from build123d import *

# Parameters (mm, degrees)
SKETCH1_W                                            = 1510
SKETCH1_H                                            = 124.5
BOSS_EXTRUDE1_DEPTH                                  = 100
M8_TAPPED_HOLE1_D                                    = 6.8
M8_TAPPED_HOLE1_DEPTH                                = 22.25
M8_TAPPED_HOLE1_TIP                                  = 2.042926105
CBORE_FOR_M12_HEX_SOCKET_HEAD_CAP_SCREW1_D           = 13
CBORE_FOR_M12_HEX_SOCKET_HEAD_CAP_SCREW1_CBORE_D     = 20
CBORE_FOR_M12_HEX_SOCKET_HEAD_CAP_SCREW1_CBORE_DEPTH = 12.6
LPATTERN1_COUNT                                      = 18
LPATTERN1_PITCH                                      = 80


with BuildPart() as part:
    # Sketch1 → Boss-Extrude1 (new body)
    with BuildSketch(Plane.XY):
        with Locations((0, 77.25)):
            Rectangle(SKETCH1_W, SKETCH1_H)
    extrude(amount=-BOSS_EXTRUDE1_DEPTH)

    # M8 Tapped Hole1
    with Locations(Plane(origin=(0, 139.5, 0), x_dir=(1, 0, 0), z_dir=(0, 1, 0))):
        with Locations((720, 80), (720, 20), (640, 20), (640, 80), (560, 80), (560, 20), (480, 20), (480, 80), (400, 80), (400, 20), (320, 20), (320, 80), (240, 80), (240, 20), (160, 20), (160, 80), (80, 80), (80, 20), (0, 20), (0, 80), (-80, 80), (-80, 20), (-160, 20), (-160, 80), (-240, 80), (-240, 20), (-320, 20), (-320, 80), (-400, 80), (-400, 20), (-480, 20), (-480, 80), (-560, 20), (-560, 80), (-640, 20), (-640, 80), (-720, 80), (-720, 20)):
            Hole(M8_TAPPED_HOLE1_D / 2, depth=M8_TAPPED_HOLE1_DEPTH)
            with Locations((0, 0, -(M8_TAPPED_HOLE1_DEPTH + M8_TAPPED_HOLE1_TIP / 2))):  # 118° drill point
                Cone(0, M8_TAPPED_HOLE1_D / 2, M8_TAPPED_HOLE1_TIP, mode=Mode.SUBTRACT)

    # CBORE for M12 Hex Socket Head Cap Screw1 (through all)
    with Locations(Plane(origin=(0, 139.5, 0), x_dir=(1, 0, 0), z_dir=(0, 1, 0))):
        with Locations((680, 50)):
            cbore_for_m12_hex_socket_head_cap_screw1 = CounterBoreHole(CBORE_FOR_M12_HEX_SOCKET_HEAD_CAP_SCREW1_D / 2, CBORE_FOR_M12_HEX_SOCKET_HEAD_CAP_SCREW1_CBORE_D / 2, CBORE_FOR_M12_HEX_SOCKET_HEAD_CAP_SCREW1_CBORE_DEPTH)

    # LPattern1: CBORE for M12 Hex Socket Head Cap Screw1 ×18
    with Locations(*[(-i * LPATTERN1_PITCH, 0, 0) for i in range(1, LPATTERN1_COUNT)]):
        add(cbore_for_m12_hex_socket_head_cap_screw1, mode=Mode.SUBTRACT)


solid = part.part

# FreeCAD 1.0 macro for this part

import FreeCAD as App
import Part
import Sketcher
from FreeCAD import Vector


def add_polygon(sketch, points):
    """Adds a closed chain of lines whose ends are joined by coincident constraints."""
    first, n = sketch.GeometryCount, len(points)
    for a, b in zip(points, points[1:] + points[:1]):
        sketch.addGeometry(Part.LineSegment(App.Vector(*a, 0), App.Vector(*b, 0)), False)
    for i in range(n):
        sketch.addConstraint(Sketcher.Constraint("Coincident", first + i, 2, first + (i + 1) % n, 1))

doc = App.newDocument("Part")
body = doc.addObject("PartDesign::Body", "Body")

# Sketch on XY plane
sketch1 = body.newObject("Sketcher::SketchObject", "Sketch")
sketch1.AttachmentSupport = (doc.getObject("XY_Plane"), [""])
sketch1.MapMode = "FlatFace"
add_polygon(sketch1, [(-755, 140), (-755, 15), (755, 15), (755, 140)])  # lines 0-3
sketch1.addConstraint([
    Sketcher.Constraint("Vertical", 0),
    Sketcher.Constraint("Horizontal", 1),
    Sketcher.Constraint("Vertical", 2),
    Sketcher.Constraint("Horizontal", 3),
    Sketcher.Constraint("DistanceX", 1, 1, 1, 2, 1510.0),
    Sketcher.Constraint("DistanceY", 0, 2, 0, 1, 124.5),
    Sketcher.Constraint("DistanceX", 0, 2, -1, 1, 755.0),
    Sketcher.Constraint("DistanceY", -1, 1, 0, 2, 15.0),
])
pad1 = body.newObject("PartDesign::Pad", "Pad")
pad1.Profile = sketch1
pad1.Length = 100
pad1.Reversed = True

# Sketch on XZ plane
sketch2 = body.newObject("Sketcher::SketchObject", "Sketch001")
sketch2.AttachmentSupport = (doc.getObject("XZ_Plane"), [""])
sketch2.MapMode = "FlatFace"
sketch2.AttachmentOffset = App.Placement(Vector(0, 0, -139.5), App.Rotation())
sketch2.addGeometry([
    Part.Circle(Vector(720, -80, 0), Vector(0, 0, 1), 3.4),  # 0
    Part.Circle(Vector(720, -20, 0), Vector(0, 0, 1), 3.4),  # 1
    Part.Circle(Vector(640, -20, 0), Vector(0, 0, 1), 3.4),  # 2
    Part.Circle(Vector(640, -80, 0), Vector(0, 0, 1), 3.4),  # 3
    Part.Circle(Vector(560, -80, 0), Vector(0, 0, 1), 3.4),  # 4
    Part.Circle(Vector(560, -20, 0), Vector(0, 0, 1), 3.4),  # 5
    Part.Circle(Vector(480, -20, 0), Vector(0, 0, 1), 3.4),  # 6
    Part.Circle(Vector(480, -80, 0), Vector(0, 0, 1), 3.4),  # 7
    Part.Circle(Vector(400, -80, 0), Vector(0, 0, 1), 3.4),  # 8
    Part.Circle(Vector(400, -20, 0), Vector(0, 0, 1), 3.4),  # 9
    Part.Circle(Vector(320, -20, 0), Vector(0, 0, 1), 3.4),  # 10
    Part.Circle(Vector(320, -80, 0), Vector(0, 0, 1), 3.4),  # 11
    Part.Circle(Vector(240, -80, 0), Vector(0, 0, 1), 3.4),  # 12
    Part.Circle(Vector(240, -20, 0), Vector(0, 0, 1), 3.4),  # 13
    Part.Circle(Vector(160, -20, 0), Vector(0, 0, 1), 3.4),  # 14
    Part.Circle(Vector(160, -80, 0), Vector(0, 0, 1), 3.4),  # 15
    Part.Circle(Vector(80, -80, 0), Vector(0, 0, 1), 3.4),  # 16
    Part.Circle(Vector(80, -20, 0), Vector(0, 0, 1), 3.4),  # 17
    Part.Circle(Vector(0, -20, 0), Vector(0, 0, 1), 3.4),  # 18
    Part.Circle(Vector(0, -80, 0), Vector(0, 0, 1), 3.4),  # 19
    Part.Circle(Vector(-80, -80, 0), Vector(0, 0, 1), 3.4),  # 20
    Part.Circle(Vector(-80, -20, 0), Vector(0, 0, 1), 3.4),  # 21
    Part.Circle(Vector(-160, -20, 0), Vector(0, 0, 1), 3.4),  # 22
    Part.Circle(Vector(-160, -80, 0), Vector(0, 0, 1), 3.4),  # 23
    Part.Circle(Vector(-240, -80, 0), Vector(0, 0, 1), 3.4),  # 24
    Part.Circle(Vector(-240, -20, 0), Vector(0, 0, 1), 3.4),  # 25
    Part.Circle(Vector(-320, -20, 0), Vector(0, 0, 1), 3.4),  # 26
    Part.Circle(Vector(-320, -80, 0), Vector(0, 0, 1), 3.4),  # 27
    Part.Circle(Vector(-400, -80, 0), Vector(0, 0, 1), 3.4),  # 28
    Part.Circle(Vector(-400, -20, 0), Vector(0, 0, 1), 3.4),  # 29
    Part.Circle(Vector(-480, -20, 0), Vector(0, 0, 1), 3.4),  # 30
    Part.Circle(Vector(-480, -80, 0), Vector(0, 0, 1), 3.4),  # 31
    Part.Circle(Vector(-560, -20, 0), Vector(0, 0, 1), 3.4),  # 32
    Part.Circle(Vector(-560, -80, 0), Vector(0, 0, 1), 3.4),  # 33
    Part.Circle(Vector(-640, -20, 0), Vector(0, 0, 1), 3.4),  # 34
    Part.Circle(Vector(-640, -80, 0), Vector(0, 0, 1), 3.4),  # 35
    Part.Circle(Vector(-720, -80, 0), Vector(0, 0, 1), 3.4),  # 36
    Part.Circle(Vector(-720, -20, 0), Vector(0, 0, 1), 3.4),  # 37
], False)
sketch2.addConstraint([
    Sketcher.Constraint("Equal", 0, 1),
    Sketcher.Constraint("Equal", 1, 2),
    Sketcher.Constraint("Equal", 2, 3),
    Sketcher.Constraint("Equal", 3, 4),
    Sketcher.Constraint("Equal", 4, 5),
    Sketcher.Constraint("Equal", 5, 6),
    Sketcher.Constraint("Equal", 6, 7),
    Sketcher.Constraint("Equal", 7, 8),
    Sketcher.Constraint("Equal", 8, 9),
    Sketcher.Constraint("Equal", 9, 10),
    Sketcher.Constraint("Equal", 10, 11),
    Sketcher.Constraint("Equal", 11, 12),
    Sketcher.Constraint("Equal", 12, 13),
    Sketcher.Constraint("Equal", 13, 14),
    Sketcher.Constraint("Equal", 14, 15),
    Sketcher.Constraint("Equal", 15, 16),
    Sketcher.Constraint("Equal", 16, 17),
    Sketcher.Constraint("Equal", 17, 18),
    Sketcher.Constraint("Equal", 18, 19),
    Sketcher.Constraint("Equal", 19, 20),
    Sketcher.Constraint("Equal", 20, 21),
    Sketcher.Constraint("Equal", 21, 22),
    Sketcher.Constraint("Equal", 22, 23),
    Sketcher.Constraint("Equal", 23, 24),
    Sketcher.Constraint("Equal", 24, 25),
    Sketcher.Constraint("Equal", 25, 26),
    Sketcher.Constraint("Equal", 26, 27),
    Sketcher.Constraint("Equal", 27, 28),
    Sketcher.Constraint("Equal", 28, 29),
    Sketcher.Constraint("Equal", 29, 30),
    Sketcher.Constraint("Equal", 30, 31),
    Sketcher.Constraint("Equal", 31, 32),
    Sketcher.Constraint("Equal", 32, 33),
    Sketcher.Constraint("Equal", 33, 34),
    Sketcher.Constraint("Equal", 34, 35),
    Sketcher.Constraint("Equal", 35, 36),
    Sketcher.Constraint("Equal", 36, 37),
    Sketcher.Constraint("Symmetric", 16, 3, 20, 3, -2),
    Sketcher.Constraint("Symmetric", 17, 3, 21, 3, -2),
    Sketcher.Constraint("Symmetric", 14, 3, 22, 3, -2),
    Sketcher.Constraint("Symmetric", 15, 3, 23, 3, -2),
    Sketcher.Constraint("Symmetric", 12, 3, 24, 3, -2),
    Sketcher.Constraint("Symmetric", 13, 3, 25, 3, -2),
    Sketcher.Constraint("Symmetric", 10, 3, 26, 3, -2),
    Sketcher.Constraint("Symmetric", 11, 3, 27, 3, -2),
    Sketcher.Constraint("Symmetric", 8, 3, 28, 3, -2),
    Sketcher.Constraint("Symmetric", 9, 3, 29, 3, -2),
    Sketcher.Constraint("Symmetric", 6, 3, 30, 3, -2),
    Sketcher.Constraint("Symmetric", 7, 3, 31, 3, -2),
    Sketcher.Constraint("Symmetric", 5, 3, 32, 3, -2),
    Sketcher.Constraint("Symmetric", 4, 3, 33, 3, -2),
    Sketcher.Constraint("Symmetric", 2, 3, 34, 3, -2),
    Sketcher.Constraint("Symmetric", 3, 3, 35, 3, -2),
    Sketcher.Constraint("Symmetric", 0, 3, 36, 3, -2),
    Sketcher.Constraint("Symmetric", 1, 3, 37, 3, -2),
    Sketcher.Constraint("PointOnObject", 18, 3, -2),
    Sketcher.Constraint("PointOnObject", 19, 3, -2),
    Sketcher.Constraint("Horizontal", 1, 3, 2, 3),
    Sketcher.Constraint("Horizontal", 0, 3, 3, 3),
    Sketcher.Constraint("Horizontal", 3, 3, 4, 3),
    Sketcher.Constraint("Horizontal", 2, 3, 5, 3),
    Sketcher.Constraint("Horizontal", 5, 3, 6, 3),
    Sketcher.Constraint("Horizontal", 4, 3, 7, 3),
    Sketcher.Constraint("Horizontal", 7, 3, 8, 3),
    Sketcher.Constraint("Horizontal", 6, 3, 9, 3),
    Sketcher.Constraint("Horizontal", 9, 3, 10, 3),
    Sketcher.Constraint("Horizontal", 8, 3, 11, 3),
    Sketcher.Constraint("Horizontal", 11, 3, 12, 3),
    Sketcher.Constraint("Horizontal", 10, 3, 13, 3),
    Sketcher.Constraint("Horizontal", 13, 3, 14, 3),
    Sketcher.Constraint("Horizontal", 12, 3, 15, 3),
    Sketcher.Constraint("Horizontal", 15, 3, 16, 3),
    Sketcher.Constraint("Horizontal", 14, 3, 17, 3),
    Sketcher.Constraint("Horizontal", 17, 3, 18, 3),
    Sketcher.Constraint("Horizontal", 16, 3, 19, 3),
    Sketcher.Constraint("Vertical", 0, 3, 1, 3),
    Sketcher.Constraint("Vertical", 2, 3, 3, 3),
    Sketcher.Constraint("Vertical", 4, 3, 5, 3),
    Sketcher.Constraint("Vertical", 6, 3, 7, 3),
    Sketcher.Constraint("Vertical", 8, 3, 9, 3),
    Sketcher.Constraint("Vertical", 10, 3, 11, 3),
    Sketcher.Constraint("Vertical", 12, 3, 13, 3),
    Sketcher.Constraint("Vertical", 14, 3, 15, 3),
    Sketcher.Constraint("Vertical", 16, 3, 17, 3),
    Sketcher.Constraint("Diameter", 0, 6.8),
    Sketcher.Constraint("DistanceX", -1, 1, 0, 3, 720.0),
    Sketcher.Constraint("DistanceY", 0, 3, -1, 1, 80.0),
    Sketcher.Constraint("DistanceY", 1, 3, -1, 1, 20.0),
    Sketcher.Constraint("DistanceX", -1, 1, 2, 3, 640.0),
    Sketcher.Constraint("DistanceX", -1, 1, 4, 3, 560.0),
    Sketcher.Constraint("DistanceX", -1, 1, 6, 3, 480.0),
    Sketcher.Constraint("DistanceX", -1, 1, 8, 3, 400.0),
    Sketcher.Constraint("DistanceX", -1, 1, 10, 3, 320.0),
    Sketcher.Constraint("DistanceX", -1, 1, 12, 3, 240.0),
    Sketcher.Constraint("DistanceX", -1, 1, 14, 3, 160.0),
    Sketcher.Constraint("DistanceX", -1, 1, 16, 3, 80.0),
])
doc.recompute()
hole = body.newObject("PartDesign::Hole", "Hole")
hole.Profile = sketch2
hole.ThreadType = "None"
hole.Diameter = 6.8
hole.DepthType = "Dimension"
hole.Depth = 22.25
hole.DrillPoint = "Angled"
hole.DrillPointAngle = 118
hole.Reversed = True

# Sketch on XZ plane
sketch3 = body.newObject("Sketcher::SketchObject", "Sketch002")
sketch3.AttachmentSupport = (doc.getObject("XZ_Plane"), [""])
sketch3.MapMode = "FlatFace"
sketch3.AttachmentOffset = App.Placement(Vector(0, 0, -139.5), App.Rotation())
sketch3.addGeometry(Part.Circle(Vector(680, -50, 0), Vector(0, 0, 1), 6), False)
sketch3.addConstraint([
    Sketcher.Constraint("Diameter", 0, 13.0),
    Sketcher.Constraint("DistanceX", -1, 1, 0, 3, 680.0),
    Sketcher.Constraint("DistanceY", 0, 3, -1, 1, 50.0),
])
doc.recompute()
hole2 = body.newObject("PartDesign::Hole", "Hole001")
hole2.Profile = sketch3
hole2.ThreadType = "None"
hole2.Diameter = 13
hole2.DepthType = "ThroughAll"
hole2.HoleCutType = "Counterbore"
hole2.HoleCutDiameter = 20
hole2.HoleCutDepth = 12.6
hole2.Reversed = True
doc.recompute()

linearpattern = body.newObject("PartDesign::LinearPattern", "LinearPattern")
linearpattern.Originals = [hole2]
linearpattern.Direction = (doc.getObject("X_Axis"), [""])
linearpattern.Mode = "offset"
linearpattern.Offset = 80
linearpattern.Occurrences = 18
linearpattern.Reversed = True
body.Tip = linearpattern

doc.recompute()
